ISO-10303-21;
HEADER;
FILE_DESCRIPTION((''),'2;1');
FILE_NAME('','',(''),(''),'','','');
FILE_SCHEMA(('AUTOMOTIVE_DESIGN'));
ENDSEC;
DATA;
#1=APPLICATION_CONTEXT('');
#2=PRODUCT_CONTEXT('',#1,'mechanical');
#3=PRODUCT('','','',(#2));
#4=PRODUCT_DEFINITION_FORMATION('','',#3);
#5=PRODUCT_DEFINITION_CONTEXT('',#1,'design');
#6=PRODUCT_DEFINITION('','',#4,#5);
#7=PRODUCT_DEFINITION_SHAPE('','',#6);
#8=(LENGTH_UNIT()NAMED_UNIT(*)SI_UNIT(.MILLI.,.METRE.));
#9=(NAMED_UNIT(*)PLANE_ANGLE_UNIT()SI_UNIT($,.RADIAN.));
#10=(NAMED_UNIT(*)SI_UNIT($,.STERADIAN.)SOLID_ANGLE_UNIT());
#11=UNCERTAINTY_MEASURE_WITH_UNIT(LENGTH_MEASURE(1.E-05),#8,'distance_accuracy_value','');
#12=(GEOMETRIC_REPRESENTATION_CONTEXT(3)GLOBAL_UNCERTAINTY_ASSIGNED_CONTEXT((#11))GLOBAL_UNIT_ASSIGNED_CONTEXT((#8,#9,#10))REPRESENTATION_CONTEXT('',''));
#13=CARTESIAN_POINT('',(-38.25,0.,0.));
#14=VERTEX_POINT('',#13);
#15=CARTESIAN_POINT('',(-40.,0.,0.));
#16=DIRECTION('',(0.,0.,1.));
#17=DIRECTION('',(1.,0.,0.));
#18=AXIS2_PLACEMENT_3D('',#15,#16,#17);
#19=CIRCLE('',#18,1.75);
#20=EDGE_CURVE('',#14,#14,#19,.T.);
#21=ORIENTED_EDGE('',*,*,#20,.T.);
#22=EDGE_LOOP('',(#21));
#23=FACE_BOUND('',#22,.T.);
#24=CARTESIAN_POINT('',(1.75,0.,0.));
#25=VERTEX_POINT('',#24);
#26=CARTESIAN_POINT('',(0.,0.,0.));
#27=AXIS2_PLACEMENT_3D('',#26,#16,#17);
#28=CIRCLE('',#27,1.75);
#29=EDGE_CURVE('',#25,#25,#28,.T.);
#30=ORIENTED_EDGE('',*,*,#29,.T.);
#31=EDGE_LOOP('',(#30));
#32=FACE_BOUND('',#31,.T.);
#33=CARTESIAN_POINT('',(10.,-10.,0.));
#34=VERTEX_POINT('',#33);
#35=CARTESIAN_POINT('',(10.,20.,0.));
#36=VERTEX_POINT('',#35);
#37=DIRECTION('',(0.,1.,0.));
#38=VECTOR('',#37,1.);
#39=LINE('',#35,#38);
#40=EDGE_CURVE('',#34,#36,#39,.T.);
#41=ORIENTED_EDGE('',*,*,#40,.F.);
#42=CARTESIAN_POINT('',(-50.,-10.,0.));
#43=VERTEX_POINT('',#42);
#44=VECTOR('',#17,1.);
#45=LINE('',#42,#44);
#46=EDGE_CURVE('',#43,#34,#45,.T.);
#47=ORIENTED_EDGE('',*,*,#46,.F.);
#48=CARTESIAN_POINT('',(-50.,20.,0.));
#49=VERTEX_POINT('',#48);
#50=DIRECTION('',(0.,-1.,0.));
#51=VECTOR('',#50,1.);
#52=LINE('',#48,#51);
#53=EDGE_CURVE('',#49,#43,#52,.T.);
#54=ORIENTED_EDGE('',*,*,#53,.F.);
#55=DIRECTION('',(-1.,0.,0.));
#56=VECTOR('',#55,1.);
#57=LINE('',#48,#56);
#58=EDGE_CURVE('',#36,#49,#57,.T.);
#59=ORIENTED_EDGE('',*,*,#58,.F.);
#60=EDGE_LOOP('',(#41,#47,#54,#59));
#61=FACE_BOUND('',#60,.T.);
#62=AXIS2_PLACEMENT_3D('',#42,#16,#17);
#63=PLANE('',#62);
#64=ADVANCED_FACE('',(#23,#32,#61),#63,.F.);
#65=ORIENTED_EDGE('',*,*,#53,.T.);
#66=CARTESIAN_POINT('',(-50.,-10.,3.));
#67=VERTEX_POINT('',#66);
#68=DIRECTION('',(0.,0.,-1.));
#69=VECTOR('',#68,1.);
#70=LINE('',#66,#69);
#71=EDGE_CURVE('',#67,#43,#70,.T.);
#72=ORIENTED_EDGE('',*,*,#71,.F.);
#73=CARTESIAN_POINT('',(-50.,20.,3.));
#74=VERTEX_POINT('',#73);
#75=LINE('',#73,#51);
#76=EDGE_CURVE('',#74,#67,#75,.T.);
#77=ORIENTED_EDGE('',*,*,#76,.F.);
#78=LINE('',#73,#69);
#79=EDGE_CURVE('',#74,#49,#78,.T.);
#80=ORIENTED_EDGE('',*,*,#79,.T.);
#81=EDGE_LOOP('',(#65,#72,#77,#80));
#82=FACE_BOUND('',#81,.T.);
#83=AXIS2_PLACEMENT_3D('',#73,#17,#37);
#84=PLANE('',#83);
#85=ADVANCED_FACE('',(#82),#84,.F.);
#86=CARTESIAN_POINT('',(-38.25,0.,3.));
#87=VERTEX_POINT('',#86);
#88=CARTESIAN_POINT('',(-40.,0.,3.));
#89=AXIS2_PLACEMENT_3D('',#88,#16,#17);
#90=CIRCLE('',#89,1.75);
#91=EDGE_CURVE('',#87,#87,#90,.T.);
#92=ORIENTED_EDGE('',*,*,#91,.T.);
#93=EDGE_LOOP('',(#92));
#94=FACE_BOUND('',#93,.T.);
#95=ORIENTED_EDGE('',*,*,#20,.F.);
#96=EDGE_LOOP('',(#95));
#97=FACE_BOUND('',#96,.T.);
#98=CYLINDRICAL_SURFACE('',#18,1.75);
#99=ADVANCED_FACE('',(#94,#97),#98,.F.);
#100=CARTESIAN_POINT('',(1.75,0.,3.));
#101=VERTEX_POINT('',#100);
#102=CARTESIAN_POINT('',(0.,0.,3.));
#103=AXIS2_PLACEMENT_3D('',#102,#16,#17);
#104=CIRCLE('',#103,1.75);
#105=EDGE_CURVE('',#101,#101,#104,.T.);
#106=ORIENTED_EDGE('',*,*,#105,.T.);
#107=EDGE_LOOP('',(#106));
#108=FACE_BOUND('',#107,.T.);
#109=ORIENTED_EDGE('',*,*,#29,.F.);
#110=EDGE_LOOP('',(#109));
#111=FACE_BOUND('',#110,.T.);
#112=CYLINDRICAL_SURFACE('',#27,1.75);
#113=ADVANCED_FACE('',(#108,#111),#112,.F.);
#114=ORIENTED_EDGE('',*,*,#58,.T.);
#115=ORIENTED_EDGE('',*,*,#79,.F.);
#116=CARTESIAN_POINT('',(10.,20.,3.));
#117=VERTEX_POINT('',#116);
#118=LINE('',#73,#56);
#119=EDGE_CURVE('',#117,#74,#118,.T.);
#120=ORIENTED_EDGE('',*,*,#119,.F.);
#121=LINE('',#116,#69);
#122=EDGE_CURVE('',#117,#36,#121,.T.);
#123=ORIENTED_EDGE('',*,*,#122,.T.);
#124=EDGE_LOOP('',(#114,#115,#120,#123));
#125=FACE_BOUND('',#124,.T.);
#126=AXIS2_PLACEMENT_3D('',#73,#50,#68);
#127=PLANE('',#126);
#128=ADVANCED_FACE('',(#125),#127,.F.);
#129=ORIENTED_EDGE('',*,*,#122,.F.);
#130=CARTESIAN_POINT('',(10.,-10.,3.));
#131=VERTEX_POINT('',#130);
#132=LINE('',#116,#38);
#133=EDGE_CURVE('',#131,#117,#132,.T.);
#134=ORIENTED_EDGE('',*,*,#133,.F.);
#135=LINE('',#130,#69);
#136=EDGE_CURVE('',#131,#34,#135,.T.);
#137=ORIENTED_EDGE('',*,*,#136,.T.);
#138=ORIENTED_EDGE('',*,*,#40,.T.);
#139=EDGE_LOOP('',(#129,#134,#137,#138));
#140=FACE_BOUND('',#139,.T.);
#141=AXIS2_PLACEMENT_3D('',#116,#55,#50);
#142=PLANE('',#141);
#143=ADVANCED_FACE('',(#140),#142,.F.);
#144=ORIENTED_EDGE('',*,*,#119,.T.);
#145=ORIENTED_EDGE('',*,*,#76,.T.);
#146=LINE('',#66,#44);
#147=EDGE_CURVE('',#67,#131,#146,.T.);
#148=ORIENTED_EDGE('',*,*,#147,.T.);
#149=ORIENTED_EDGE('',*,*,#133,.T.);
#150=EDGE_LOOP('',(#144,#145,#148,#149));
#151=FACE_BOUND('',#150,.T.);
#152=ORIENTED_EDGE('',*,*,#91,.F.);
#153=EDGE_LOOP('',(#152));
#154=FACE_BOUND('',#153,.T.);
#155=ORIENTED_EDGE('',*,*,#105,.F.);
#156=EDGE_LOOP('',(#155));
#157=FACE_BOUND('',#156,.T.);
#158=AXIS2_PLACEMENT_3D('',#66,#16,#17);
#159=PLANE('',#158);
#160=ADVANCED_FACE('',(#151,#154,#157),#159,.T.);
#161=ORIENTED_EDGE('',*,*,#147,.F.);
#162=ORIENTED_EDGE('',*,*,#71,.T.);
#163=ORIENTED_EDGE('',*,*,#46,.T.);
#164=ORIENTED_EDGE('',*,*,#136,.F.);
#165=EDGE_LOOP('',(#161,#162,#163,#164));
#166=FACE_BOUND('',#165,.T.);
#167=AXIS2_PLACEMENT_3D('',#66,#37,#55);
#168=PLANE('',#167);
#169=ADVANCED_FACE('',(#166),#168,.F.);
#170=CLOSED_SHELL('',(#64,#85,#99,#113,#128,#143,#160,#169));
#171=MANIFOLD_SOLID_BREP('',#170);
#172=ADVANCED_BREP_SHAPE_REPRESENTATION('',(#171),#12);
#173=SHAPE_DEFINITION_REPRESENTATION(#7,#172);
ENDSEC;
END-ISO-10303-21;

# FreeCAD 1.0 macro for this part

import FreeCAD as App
import Part
import Sketcher
from FreeCAD import Vector
Q = App.Units.Quantity


def add_polygon(sketch, points):
    """Adds a closed chain of lines whose ends are joined by coincident constraints."""
    first, n = sketch.GeometryCount, len(points)
    for a, b in zip(points, points[1:] + points[:1]):
        sketch.addGeometry(Part.LineSegment(App.Vector(*a, 0), App.Vector(*b, 0)), False)
    for i in range(n):
        sketch.addConstraint(Sketcher.Constraint("Coincident", first + i, 2, first + (i + 1) % n, 1))

doc = App.newDocument("Part")
body = doc.addObject("PartDesign::Body", "Body")

# Sketch on XY plane
sketch1 = doc.addObject("Sketcher::SketchObject", "Sketch")
body.addObject(sketch1)
sketch1.AttachmentSupport = (doc.XY_Plane, [""])
sketch1.MapMode = "FlatFace"
add_polygon(sketch1, [(-50, 20), (-50, -10), (10, -10), (10, 20)])  # lines 0-3
sketch1.addConstraint(Sketcher.Constraint("Vertical", 0))
sketch1.addConstraint(Sketcher.Constraint("Horizontal", 1))
sketch1.addConstraint(Sketcher.Constraint("Vertical", 2))
sketch1.addConstraint(Sketcher.Constraint("Horizontal", 3))
sketch1.addConstraint(Sketcher.Constraint("DistanceX", 1, 1, 1, 2, Q("60 mm")))
sketch1.addConstraint(Sketcher.Constraint("DistanceY", 0, 2, 0, 1, Q("30 mm")))
sketch1.addConstraint(Sketcher.Constraint("DistanceX", 0, 2, -1, 1, Q("50 mm")))
sketch1.addConstraint(Sketcher.Constraint("DistanceY", 0, 2, -1, 1, Q("10 mm")))
pad1 = doc.addObject("PartDesign::Pad", "Pad")
body.addObject(pad1)
pad1.Profile = sketch1
pad1.Length = 3

# Sketch on XY plane
sketch2 = doc.addObject("Sketcher::SketchObject", "Sketch001")
body.addObject(sketch2)
sketch2.AttachmentSupport = (doc.XY_Plane, [""])
sketch2.MapMode = "FlatFace"
sketch2.AttachmentOffset = App.Placement(Vector(0, 0, 3), App.Rotation())
sketch2.addGeometry(Part.Circle(Vector(-40, 0, 0), Vector(0, 0, 1), 1.8), False)
sketch2.addGeometry(Part.Circle(Vector(0, 0, 0), Vector(0, 0, 1), 1.8), False)
sketch2.addConstraint(Sketcher.Constraint("Coincident", 1, 3, -1, 1))
sketch2.addConstraint(Sketcher.Constraint("Equal", 0, 1))
sketch2.addConstraint(Sketcher.Constraint("PointOnObject", 0, 3, -1))
sketch2.addConstraint(Sketcher.Constraint("Diameter", 0, Q("3.5 mm")))
sketch2.addConstraint(Sketcher.Constraint("DistanceX", 0, 3, -1, 1, Q("40 mm")))
pocket1 = doc.addObject("PartDesign::Pocket", "Pocket")
body.addObject(pocket1)
pocket1.Profile = sketch2
pocket1.Type = "ThroughAll"

doc.recompute()
